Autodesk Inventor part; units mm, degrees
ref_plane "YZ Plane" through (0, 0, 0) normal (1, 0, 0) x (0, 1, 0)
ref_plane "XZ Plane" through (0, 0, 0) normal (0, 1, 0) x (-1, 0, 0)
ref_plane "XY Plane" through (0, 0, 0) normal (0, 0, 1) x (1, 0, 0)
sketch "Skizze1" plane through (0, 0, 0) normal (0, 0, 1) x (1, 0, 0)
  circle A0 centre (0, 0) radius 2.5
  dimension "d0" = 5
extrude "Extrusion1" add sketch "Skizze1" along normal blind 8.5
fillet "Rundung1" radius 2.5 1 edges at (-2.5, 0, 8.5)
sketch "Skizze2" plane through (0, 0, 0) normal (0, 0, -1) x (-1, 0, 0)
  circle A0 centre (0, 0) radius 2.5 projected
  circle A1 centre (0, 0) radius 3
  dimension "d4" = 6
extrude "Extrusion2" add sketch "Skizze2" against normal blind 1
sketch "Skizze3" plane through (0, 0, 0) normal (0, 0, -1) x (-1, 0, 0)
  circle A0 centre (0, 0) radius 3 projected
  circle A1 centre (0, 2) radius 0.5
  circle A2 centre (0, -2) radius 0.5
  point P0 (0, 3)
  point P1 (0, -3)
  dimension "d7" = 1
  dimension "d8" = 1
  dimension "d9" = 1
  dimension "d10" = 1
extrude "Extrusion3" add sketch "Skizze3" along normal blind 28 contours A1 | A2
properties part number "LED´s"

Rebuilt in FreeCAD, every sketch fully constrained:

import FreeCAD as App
import Part
import Sketcher

V = App.Vector


def edges_at(feature, points):
    """Names of the edges that pass closest to the given points."""
    edges = feature.Shape.Edges
    near = lambda p: min(range(len(edges)), key=lambda i: edges[i].distToShape(Part.Vertex(*p))[0])
    return sorted({f"Edge{near(p) + 1}" for p in points})

doc = App.newDocument("Part")
body = doc.addObject("PartDesign::Body", "Body")

# Sketch on XY plane
sketch1 = doc.addObject("Sketcher::SketchObject", "Sketch")
body.addObject(sketch1)
sketch1.AttachmentSupport = (doc.XY_Plane, [""])
sketch1.MapMode = "FlatFace"
sketch1.addGeometry(Part.Circle(V(0, 0, 0), V(0, 0, 1), 2.5), False)
sketch1.addConstraint([
    Sketcher.Constraint("Coincident", 0, 3, -1, 1),
    Sketcher.Constraint("Diameter", 0, 5.0),
])
pad1 = doc.addObject("PartDesign::Pad", "Pad")
body.addObject(pad1)
pad1.Profile = sketch1
pad1.Length = 8.5
doc.recompute()

fillet = doc.addObject("PartDesign::Fillet", "Fillet")
body.addObject(fillet)
fillet.Base = (pad1, edges_at(pad1, [(-2.5, 0, 8.5)]))
fillet.Radius = 2.5

# Sketch on XY plane
sketch2 = doc.addObject("Sketcher::SketchObject", "Sketch001")
body.addObject(sketch2)
sketch2.AttachmentSupport = (doc.XY_Plane, [""])
sketch2.MapMode = "FlatFace"
sketch2.addGeometry([
    Part.Circle(V(0, 0, 0), V(0, 0, 1), 3),
    Part.Circle(V(0, 0, 0), V(0, 0, 1), 2.5),
], False)
sketch2.addConstraint([
    Sketcher.Constraint("Coincident", 0, 3, -1, 1),
    Sketcher.Constraint("Coincident", 1, 3, -1, 1),
    Sketcher.Constraint("Diameter", 0, 6.0),
    Sketcher.Constraint("Diameter", 1, 5.0),
])
pad2 = doc.addObject("PartDesign::Pad", "Pad001")
body.addObject(pad2)
pad2.Profile = sketch2
pad2.Length = 1

# Sketch on XY plane
sketch3 = doc.addObject("Sketcher::SketchObject", "Sketch002")
body.addObject(sketch3)
sketch3.AttachmentSupport = (doc.XY_Plane, [""])
sketch3.MapMode = "FlatFace"
sketch3.addGeometry([
    Part.Circle(V(0, 2, 0), V(0, 0, 1), 0.5),
    Part.Circle(V(0, -2, 0), V(0, 0, 1), 0.5),
], False)
sketch3.addConstraint([
    Sketcher.Constraint("Equal", 0, 1),
    Sketcher.Constraint("Symmetric", 0, 3, 1, 3, -1, 1),
    Sketcher.Constraint("PointOnObject", 0, 3, -2),
    Sketcher.Constraint("Diameter", 0, 1.0),
    Sketcher.Constraint("DistanceY", -1, 1, 0, 3, 2.0),
])
pad3 = doc.addObject("PartDesign::Pad", "Pad002")
body.addObject(pad3)
pad3.Profile = sketch3
pad3.Length = 28
pad3.Reversed = True

doc.recompute()
